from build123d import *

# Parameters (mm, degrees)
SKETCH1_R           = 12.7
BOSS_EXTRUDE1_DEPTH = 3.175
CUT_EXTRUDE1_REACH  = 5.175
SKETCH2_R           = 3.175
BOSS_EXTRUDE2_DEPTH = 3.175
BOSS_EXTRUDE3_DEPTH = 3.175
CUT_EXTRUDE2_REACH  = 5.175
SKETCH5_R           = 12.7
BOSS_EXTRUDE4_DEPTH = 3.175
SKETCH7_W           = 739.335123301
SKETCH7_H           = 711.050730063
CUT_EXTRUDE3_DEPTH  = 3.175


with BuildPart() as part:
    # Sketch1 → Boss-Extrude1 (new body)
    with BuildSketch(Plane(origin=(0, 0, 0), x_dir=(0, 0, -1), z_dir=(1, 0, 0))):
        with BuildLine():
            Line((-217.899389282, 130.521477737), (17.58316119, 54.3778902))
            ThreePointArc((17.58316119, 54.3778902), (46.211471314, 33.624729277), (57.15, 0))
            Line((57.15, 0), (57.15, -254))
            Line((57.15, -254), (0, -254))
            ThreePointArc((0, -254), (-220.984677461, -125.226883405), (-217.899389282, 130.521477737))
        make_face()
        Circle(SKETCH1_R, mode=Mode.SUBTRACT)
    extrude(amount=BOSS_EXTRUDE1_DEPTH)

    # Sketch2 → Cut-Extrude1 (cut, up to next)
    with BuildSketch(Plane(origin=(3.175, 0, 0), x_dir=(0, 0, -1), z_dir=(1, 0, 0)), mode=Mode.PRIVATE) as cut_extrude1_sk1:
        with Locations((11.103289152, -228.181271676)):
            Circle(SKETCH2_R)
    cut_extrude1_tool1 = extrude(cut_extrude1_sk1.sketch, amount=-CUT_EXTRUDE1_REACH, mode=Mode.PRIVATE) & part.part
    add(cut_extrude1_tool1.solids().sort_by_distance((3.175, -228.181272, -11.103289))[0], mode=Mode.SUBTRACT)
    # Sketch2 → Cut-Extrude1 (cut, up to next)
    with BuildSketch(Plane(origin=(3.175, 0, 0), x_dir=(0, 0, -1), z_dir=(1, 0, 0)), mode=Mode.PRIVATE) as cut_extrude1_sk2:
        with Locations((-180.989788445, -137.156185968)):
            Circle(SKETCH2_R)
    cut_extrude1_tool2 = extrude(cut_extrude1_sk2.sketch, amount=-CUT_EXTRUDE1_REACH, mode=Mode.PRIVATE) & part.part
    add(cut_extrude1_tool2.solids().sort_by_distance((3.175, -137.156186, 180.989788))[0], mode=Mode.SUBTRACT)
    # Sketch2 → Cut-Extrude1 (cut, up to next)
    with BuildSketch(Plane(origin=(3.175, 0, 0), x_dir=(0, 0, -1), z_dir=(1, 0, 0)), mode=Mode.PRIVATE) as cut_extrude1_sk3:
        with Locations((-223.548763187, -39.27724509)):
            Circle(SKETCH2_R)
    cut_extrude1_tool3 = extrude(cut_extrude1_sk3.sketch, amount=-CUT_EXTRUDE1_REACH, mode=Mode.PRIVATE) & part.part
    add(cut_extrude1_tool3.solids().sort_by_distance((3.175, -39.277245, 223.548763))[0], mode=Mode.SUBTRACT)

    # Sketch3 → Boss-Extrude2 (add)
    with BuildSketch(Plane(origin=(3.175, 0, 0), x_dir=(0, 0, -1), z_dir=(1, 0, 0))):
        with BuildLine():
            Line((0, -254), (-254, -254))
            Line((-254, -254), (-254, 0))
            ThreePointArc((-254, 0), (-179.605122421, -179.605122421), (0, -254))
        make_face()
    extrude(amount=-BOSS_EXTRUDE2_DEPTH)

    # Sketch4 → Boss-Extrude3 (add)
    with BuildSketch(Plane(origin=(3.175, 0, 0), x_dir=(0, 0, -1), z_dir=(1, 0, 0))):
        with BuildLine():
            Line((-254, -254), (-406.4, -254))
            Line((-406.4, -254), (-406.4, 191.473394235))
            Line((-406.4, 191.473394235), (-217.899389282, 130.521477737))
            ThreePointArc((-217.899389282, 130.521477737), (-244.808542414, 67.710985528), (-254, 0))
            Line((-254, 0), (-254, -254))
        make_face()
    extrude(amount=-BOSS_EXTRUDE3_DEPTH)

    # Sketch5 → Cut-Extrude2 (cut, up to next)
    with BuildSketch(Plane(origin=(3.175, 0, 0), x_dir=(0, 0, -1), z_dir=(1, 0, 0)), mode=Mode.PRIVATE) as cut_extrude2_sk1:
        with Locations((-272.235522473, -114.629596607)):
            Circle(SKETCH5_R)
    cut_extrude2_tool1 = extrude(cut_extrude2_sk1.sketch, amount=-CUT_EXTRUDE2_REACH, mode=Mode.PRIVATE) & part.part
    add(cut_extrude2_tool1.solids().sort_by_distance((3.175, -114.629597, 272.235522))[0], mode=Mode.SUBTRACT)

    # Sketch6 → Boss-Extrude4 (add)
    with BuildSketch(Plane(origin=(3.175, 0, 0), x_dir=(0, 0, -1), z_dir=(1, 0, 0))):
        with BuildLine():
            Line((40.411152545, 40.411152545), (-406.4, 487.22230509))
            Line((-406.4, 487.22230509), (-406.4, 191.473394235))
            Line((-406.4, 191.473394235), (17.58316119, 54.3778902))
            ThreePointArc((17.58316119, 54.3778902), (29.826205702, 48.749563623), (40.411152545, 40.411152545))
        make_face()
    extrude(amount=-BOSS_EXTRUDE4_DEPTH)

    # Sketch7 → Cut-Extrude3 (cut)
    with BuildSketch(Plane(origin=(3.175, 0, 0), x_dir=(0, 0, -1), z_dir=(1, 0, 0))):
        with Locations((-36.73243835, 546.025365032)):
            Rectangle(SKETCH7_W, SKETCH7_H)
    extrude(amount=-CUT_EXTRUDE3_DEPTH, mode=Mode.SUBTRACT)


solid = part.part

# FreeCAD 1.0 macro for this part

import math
import FreeCAD as App
import Part
import Sketcher

V = App.Vector
Q = App.Units.Quantity

doc = App.newDocument("Part")
body = doc.addObject("PartDesign::Body", "Body")

# Sketch on YZ plane
sketch1 = body.newObject("Sketcher::SketchObject", "Sketch")
sketch1.AttachmentSupport = (doc.getObject("YZ_Plane"), [""])
sketch1.MapMode = "FlatFace"
sketch1.addGeometry([
    Part.LineSegment(V(54, -18, 0), V(131, 218, 0)),  # 0
    Part.ArcOfCircle(Part.Circle(V(0, 0, 0), V(0, 0, 1), 254), math.radians(59), math.radians(180)),  # 1
    Part.LineSegment(V(-254, 0, 0), V(-254, -57, 0)),  # 2
    Part.LineSegment(V(-254, -57, 0), V(0, -57, 0)),  # 3
    Part.ArcOfCircle(Part.Circle(V(0, 0, 0), V(0, 0, 1), 57), math.radians(-90), math.radians(-18)),  # 4
    Part.Circle(V(0, 0, 0), V(0, 0, 1), 13),  # 5
], False)
sketch1.addConstraint([
    Sketcher.Constraint("Coincident", 0, 2, 1, 1),
    Sketcher.Constraint("Tangent", 1, 2, 2, 1),
    Sketcher.Constraint("Coincident", 2, 2, 3, 1),
    Sketcher.Constraint("Tangent", 3, 2, 4, 1),
    Sketcher.Constraint("Tangent", 4, 2, 0, 1),
    Sketcher.Constraint("Vertical", 2),
    Sketcher.Constraint("Horizontal", 3),
    Sketcher.Constraint("Coincident", 1, 3, -1, 1),
    Sketcher.Constraint("Coincident", 4, 3, -1, 1),
    Sketcher.Constraint("Coincident", 5, 3, -1, 1),
    Sketcher.Constraint("Diameter", 5, Q("1 in")),
    Sketcher.Constraint("Radius", 1, Q("10 in")),
    Sketcher.Constraint("Radius", 4, Q("2.25 in")),
    Sketcher.Constraint("DistanceY", -1, 1, 0, 2, 217.899389),
])
pad1 = body.newObject("PartDesign::Pad", "Pad")
pad1.Profile = sketch1
pad1.Length = Q("0.125 in")

# Sketch on YZ plane
sketch2 = body.newObject("Sketcher::SketchObject", "Sketch001")
sketch2.AttachmentSupport = (doc.getObject("YZ_Plane"), [""])
sketch2.MapMode = "FlatFace"
sketch2.AttachmentOffset = App.Placement(V(0, 0, 0.125 * 25.4), App.Rotation())
sketch2.addGeometry(Part.Circle(V(-228.2, -11.1, 0), V(0, 0, 1), 3.2), False)
sketch2.addConstraint([
    Sketcher.Constraint("Diameter", 0, Q("0.25 in")),
    Sketcher.Constraint("DistanceX", 0, 3, -1, 1, 228.181272),
    Sketcher.Constraint("DistanceY", 0, 3, -1, 1, 11.103289),
])
pocket1 = body.newObject("PartDesign::Pocket", "Pocket")
pocket1.Profile = sketch2
pocket1.Type = "UpToFirst"

# Sketch on YZ plane
sketch3 = body.newObject("Sketcher::SketchObject", "Sketch002")
sketch3.AttachmentSupport = (doc.getObject("YZ_Plane"), [""])
sketch3.MapMode = "FlatFace"
sketch3.AttachmentOffset = App.Placement(V(0, 0, 0.125 * 25.4), App.Rotation())
sketch3.addGeometry(Part.Circle(V(-137.2, 181, 0), V(0, 0, 1), 3.2), False)
sketch3.addConstraint([
    Sketcher.Constraint("Diameter", 0, Q("0.25 in")),
    Sketcher.Constraint("DistanceY", -1, 1, 0, 3, 180.989788),
    Sketcher.Constraint("DistanceX", 0, 3, -1, 1, 137.156186),
])
pocket2 = body.newObject("PartDesign::Pocket", "Pocket001")
pocket2.Profile = sketch3
pocket2.Type = "UpToFirst"

# Sketch on YZ plane
sketch4 = body.newObject("Sketcher::SketchObject", "Sketch003")
sketch4.AttachmentSupport = (doc.getObject("YZ_Plane"), [""])
sketch4.MapMode = "FlatFace"
sketch4.AttachmentOffset = App.Placement(V(0, 0, 0.125 * 25.4), App.Rotation())
sketch4.addGeometry(Part.Circle(V(-39.3, 223.5, 0), V(0, 0, 1), 3.2), False)
sketch4.addConstraint([
    Sketcher.Constraint("Diameter", 0, Q("0.25 in")),
    Sketcher.Constraint("DistanceX", 0, 3, -1, 1, 39.277245),
    Sketcher.Constraint("DistanceY", -1, 1, 0, 3, 223.548763),
])
pocket3 = body.newObject("PartDesign::Pocket", "Pocket002")
pocket3.Profile = sketch4
pocket3.Type = "UpToFirst"

# Sketch on YZ plane
sketch5 = body.newObject("Sketcher::SketchObject", "Sketch004")
sketch5.AttachmentSupport = (doc.getObject("YZ_Plane"), [""])
sketch5.MapMode = "FlatFace"
sketch5.AttachmentOffset = App.Placement(V(0, 0, 0.125 * 25.4), App.Rotation())
sketch5.addGeometry([
    Part.LineSegment(V(-254, 254, 0), V(-254, 0, 0)),
    Part.ArcOfCircle(Part.Circle(V(0, 0, 0), V(0, 0, 1), 254), math.radians(90), math.radians(180)),
    Part.LineSegment(V(0, 254, 0), V(-254, 254, 0)),
], False)
sketch5.addConstraint([
    Sketcher.Constraint("Tangent", 0, 2, 1, 2),
    Sketcher.Constraint("Tangent", 1, 1, 2, 1),
    Sketcher.Constraint("Coincident", 2, 2, 0, 1),
    Sketcher.Constraint("Vertical", 0),
    Sketcher.Constraint("Horizontal", 2),
    Sketcher.Constraint("Coincident", 1, 3, -1, 1),
    Sketcher.Constraint("Radius", 1, Q("10 in")),
])
pad2 = body.newObject("PartDesign::Pad", "Pad001")
pad2.Profile = sketch5
pad2.Length = Q("0.125 in")
pad2.Reversed = True

# Sketch on YZ plane
sketch6 = body.newObject("Sketcher::SketchObject", "Sketch005")
sketch6.AttachmentSupport = (doc.getObject("YZ_Plane"), [""])
sketch6.MapMode = "FlatFace"
sketch6.AttachmentOffset = App.Placement(V(0, 0, 0.125 * 25.4), App.Rotation())
sketch6.addGeometry([
    Part.LineSegment(V(-254, 406, 0), V(-254, 254, 0)),  # 0
    Part.LineSegment(V(-254, 254, 0), V(0, 254, 0)),  # 1
    Part.ArcOfCircle(Part.Circle(V(0, 0, 0), V(0, 0, 1), 254), math.radians(59), math.radians(90)),  # 2
    Part.LineSegment(V(131, 218, 0), V(191, 406, 0)),  # 3
    Part.LineSegment(V(191, 406, 0), V(-254, 406, 0)),  # 4
], False)
sketch6.addConstraint([
    Sketcher.Constraint("Coincident", 0, 2, 1, 1),
    Sketcher.Constraint("Tangent", 1, 2, 2, 2),
    Sketcher.Constraint("Coincident", 2, 1, 3, 1),
    Sketcher.Constraint("Coincident", 3, 2, 4, 1),
    Sketcher.Constraint("Coincident", 4, 2, 0, 1),
    Sketcher.Constraint("Vertical", 0),
    Sketcher.Constraint("Horizontal", 1),
    Sketcher.Constraint("Horizontal", 4),
    Sketcher.Constraint("Coincident", 2, 3, -1, 1),
    Sketcher.Constraint("Radius", 2, Q("10 in")),
    Sketcher.Constraint("DistanceX", 1, 1, 1, 2, Q("10 in")),
    Sketcher.Constraint("DistanceY", 0, 2, 0, 1, Q("6 in")),
    Sketcher.Constraint("Distance", 3, 198.110112),
    Sketcher.Constraint("DistanceX", 4, 2, 4, 1, 445.473394),
])
pad3 = body.newObject("PartDesign::Pad", "Pad002")
pad3.Profile = sketch6
pad3.Length = Q("0.125 in")
pad3.Reversed = True

# Sketch on YZ plane
sketch7 = body.newObject("Sketcher::SketchObject", "Sketch006")
sketch7.AttachmentSupport = (doc.getObject("YZ_Plane"), [""])
sketch7.MapMode = "FlatFace"
sketch7.AttachmentOffset = App.Placement(V(0, 0, 0.125 * 25.4), App.Rotation())
sketch7.addGeometry(Part.Circle(V(-115, 272, 0), V(0, 0, 1), 13), False)
sketch7.addConstraint([
    Sketcher.Constraint("Diameter", 0, Q("1 in")),
    Sketcher.Constraint("DistanceX", 0, 3, -1, 1, 114.629597),
    Sketcher.Constraint("DistanceY", -1, 1, 0, 3, 272.235522),
])
pocket4 = body.newObject("PartDesign::Pocket", "Pocket003")
pocket4.Profile = sketch7
pocket4.Type = "UpToFirst"

# Sketch on YZ plane
sketch8 = body.newObject("Sketcher::SketchObject", "Sketch007")
sketch8.AttachmentSupport = (doc.getObject("YZ_Plane"), [""])
sketch8.MapMode = "FlatFace"
sketch8.AttachmentOffset = App.Placement(V(0, 0, 0.125 * 25.4), App.Rotation())
sketch8.addGeometry([
    Part.LineSegment(V(40, -40, 0), V(487, 406, 0)),
    Part.LineSegment(V(487, 406, 0), V(191, 406, 0)),
    Part.LineSegment(V(191, 406, 0), V(54, -18, 0)),
    Part.ArcOfCircle(Part.Circle(V(0, 0, 0), V(0, 0, 1), 57), math.radians(-45), math.radians(-18)),
], False)
sketch8.addConstraint([
    Sketcher.Constraint("Coincident", 0, 2, 1, 1),
    Sketcher.Constraint("Coincident", 1, 2, 2, 1),
    Sketcher.Constraint("Tangent", 2, 2, 3, 2),
    Sketcher.Constraint("Tangent", 3, 1, 0, 1),
    Sketcher.Constraint("Horizontal", 1),
    Sketcher.Constraint("Coincident", 3, 3, -1, 1),
    Sketcher.Constraint("Radius", 3, Q("2.25 in")),
    Sketcher.Constraint("DistanceY", -1, 1, 0, 2, Q("16 in")),
    Sketcher.Constraint("Angle", 0, Q("45 deg")),
    Sketcher.Constraint("DistanceX", 1, 2, 1, 1, 295.748911),
])
pad4 = body.newObject("PartDesign::Pad", "Pad003")
pad4.Profile = sketch8
pad4.Length = Q("0.125 in")
pad4.Reversed = True

# Sketch on YZ plane
sketch9 = body.newObject("Sketcher::SketchObject", "Sketch008")
sketch9.AttachmentSupport = (doc.getObject("YZ_Plane"), [""])
sketch9.MapMode = "FlatFace"
sketch9.AttachmentOffset = App.Placement(V(0, 0, 0.125 * 25.4), App.Rotation())
sketch9.addGeometry([
    Part.LineSegment(V(902, 406, 0), V(190, 406, 0)),
    Part.LineSegment(V(190, 406, 0), V(190, -333, 0)),
    Part.LineSegment(V(190, -333, 0), V(902, -333, 0)),
    Part.LineSegment(V(902, -333, 0), V(902, 406, 0)),
], False)
sketch9.addConstraint([
    Sketcher.Constraint("Coincident", 0, 2, 1, 1),
    Sketcher.Constraint("Coincident", 1, 2, 2, 1),
    Sketcher.Constraint("Coincident", 2, 2, 3, 1),
    Sketcher.Constraint("Coincident", 3, 2, 0, 1),
    Sketcher.Constraint("Horizontal", 0),
    Sketcher.Constraint("Vertical", 1),
    Sketcher.Constraint("Horizontal", 2),
    Sketcher.Constraint("Vertical", 3),
    Sketcher.Constraint("DistanceY", -1, 1, 0, 2, Q("16 in")),
    Sketcher.Constraint("DistanceX", -1, 1, 0, 2, Q("7.5 in")),
    Sketcher.Constraint("DistanceX", 0, 2, 0, 1, 711.05073),
    Sketcher.Constraint("DistanceY", 1, 2, 1, 1, 739.335123),
])
pocket5 = body.newObject("PartDesign::Pocket", "Pocket004")
pocket5.Profile = sketch9
pocket5.Length = Q("0.125 in")

doc.recompute()
